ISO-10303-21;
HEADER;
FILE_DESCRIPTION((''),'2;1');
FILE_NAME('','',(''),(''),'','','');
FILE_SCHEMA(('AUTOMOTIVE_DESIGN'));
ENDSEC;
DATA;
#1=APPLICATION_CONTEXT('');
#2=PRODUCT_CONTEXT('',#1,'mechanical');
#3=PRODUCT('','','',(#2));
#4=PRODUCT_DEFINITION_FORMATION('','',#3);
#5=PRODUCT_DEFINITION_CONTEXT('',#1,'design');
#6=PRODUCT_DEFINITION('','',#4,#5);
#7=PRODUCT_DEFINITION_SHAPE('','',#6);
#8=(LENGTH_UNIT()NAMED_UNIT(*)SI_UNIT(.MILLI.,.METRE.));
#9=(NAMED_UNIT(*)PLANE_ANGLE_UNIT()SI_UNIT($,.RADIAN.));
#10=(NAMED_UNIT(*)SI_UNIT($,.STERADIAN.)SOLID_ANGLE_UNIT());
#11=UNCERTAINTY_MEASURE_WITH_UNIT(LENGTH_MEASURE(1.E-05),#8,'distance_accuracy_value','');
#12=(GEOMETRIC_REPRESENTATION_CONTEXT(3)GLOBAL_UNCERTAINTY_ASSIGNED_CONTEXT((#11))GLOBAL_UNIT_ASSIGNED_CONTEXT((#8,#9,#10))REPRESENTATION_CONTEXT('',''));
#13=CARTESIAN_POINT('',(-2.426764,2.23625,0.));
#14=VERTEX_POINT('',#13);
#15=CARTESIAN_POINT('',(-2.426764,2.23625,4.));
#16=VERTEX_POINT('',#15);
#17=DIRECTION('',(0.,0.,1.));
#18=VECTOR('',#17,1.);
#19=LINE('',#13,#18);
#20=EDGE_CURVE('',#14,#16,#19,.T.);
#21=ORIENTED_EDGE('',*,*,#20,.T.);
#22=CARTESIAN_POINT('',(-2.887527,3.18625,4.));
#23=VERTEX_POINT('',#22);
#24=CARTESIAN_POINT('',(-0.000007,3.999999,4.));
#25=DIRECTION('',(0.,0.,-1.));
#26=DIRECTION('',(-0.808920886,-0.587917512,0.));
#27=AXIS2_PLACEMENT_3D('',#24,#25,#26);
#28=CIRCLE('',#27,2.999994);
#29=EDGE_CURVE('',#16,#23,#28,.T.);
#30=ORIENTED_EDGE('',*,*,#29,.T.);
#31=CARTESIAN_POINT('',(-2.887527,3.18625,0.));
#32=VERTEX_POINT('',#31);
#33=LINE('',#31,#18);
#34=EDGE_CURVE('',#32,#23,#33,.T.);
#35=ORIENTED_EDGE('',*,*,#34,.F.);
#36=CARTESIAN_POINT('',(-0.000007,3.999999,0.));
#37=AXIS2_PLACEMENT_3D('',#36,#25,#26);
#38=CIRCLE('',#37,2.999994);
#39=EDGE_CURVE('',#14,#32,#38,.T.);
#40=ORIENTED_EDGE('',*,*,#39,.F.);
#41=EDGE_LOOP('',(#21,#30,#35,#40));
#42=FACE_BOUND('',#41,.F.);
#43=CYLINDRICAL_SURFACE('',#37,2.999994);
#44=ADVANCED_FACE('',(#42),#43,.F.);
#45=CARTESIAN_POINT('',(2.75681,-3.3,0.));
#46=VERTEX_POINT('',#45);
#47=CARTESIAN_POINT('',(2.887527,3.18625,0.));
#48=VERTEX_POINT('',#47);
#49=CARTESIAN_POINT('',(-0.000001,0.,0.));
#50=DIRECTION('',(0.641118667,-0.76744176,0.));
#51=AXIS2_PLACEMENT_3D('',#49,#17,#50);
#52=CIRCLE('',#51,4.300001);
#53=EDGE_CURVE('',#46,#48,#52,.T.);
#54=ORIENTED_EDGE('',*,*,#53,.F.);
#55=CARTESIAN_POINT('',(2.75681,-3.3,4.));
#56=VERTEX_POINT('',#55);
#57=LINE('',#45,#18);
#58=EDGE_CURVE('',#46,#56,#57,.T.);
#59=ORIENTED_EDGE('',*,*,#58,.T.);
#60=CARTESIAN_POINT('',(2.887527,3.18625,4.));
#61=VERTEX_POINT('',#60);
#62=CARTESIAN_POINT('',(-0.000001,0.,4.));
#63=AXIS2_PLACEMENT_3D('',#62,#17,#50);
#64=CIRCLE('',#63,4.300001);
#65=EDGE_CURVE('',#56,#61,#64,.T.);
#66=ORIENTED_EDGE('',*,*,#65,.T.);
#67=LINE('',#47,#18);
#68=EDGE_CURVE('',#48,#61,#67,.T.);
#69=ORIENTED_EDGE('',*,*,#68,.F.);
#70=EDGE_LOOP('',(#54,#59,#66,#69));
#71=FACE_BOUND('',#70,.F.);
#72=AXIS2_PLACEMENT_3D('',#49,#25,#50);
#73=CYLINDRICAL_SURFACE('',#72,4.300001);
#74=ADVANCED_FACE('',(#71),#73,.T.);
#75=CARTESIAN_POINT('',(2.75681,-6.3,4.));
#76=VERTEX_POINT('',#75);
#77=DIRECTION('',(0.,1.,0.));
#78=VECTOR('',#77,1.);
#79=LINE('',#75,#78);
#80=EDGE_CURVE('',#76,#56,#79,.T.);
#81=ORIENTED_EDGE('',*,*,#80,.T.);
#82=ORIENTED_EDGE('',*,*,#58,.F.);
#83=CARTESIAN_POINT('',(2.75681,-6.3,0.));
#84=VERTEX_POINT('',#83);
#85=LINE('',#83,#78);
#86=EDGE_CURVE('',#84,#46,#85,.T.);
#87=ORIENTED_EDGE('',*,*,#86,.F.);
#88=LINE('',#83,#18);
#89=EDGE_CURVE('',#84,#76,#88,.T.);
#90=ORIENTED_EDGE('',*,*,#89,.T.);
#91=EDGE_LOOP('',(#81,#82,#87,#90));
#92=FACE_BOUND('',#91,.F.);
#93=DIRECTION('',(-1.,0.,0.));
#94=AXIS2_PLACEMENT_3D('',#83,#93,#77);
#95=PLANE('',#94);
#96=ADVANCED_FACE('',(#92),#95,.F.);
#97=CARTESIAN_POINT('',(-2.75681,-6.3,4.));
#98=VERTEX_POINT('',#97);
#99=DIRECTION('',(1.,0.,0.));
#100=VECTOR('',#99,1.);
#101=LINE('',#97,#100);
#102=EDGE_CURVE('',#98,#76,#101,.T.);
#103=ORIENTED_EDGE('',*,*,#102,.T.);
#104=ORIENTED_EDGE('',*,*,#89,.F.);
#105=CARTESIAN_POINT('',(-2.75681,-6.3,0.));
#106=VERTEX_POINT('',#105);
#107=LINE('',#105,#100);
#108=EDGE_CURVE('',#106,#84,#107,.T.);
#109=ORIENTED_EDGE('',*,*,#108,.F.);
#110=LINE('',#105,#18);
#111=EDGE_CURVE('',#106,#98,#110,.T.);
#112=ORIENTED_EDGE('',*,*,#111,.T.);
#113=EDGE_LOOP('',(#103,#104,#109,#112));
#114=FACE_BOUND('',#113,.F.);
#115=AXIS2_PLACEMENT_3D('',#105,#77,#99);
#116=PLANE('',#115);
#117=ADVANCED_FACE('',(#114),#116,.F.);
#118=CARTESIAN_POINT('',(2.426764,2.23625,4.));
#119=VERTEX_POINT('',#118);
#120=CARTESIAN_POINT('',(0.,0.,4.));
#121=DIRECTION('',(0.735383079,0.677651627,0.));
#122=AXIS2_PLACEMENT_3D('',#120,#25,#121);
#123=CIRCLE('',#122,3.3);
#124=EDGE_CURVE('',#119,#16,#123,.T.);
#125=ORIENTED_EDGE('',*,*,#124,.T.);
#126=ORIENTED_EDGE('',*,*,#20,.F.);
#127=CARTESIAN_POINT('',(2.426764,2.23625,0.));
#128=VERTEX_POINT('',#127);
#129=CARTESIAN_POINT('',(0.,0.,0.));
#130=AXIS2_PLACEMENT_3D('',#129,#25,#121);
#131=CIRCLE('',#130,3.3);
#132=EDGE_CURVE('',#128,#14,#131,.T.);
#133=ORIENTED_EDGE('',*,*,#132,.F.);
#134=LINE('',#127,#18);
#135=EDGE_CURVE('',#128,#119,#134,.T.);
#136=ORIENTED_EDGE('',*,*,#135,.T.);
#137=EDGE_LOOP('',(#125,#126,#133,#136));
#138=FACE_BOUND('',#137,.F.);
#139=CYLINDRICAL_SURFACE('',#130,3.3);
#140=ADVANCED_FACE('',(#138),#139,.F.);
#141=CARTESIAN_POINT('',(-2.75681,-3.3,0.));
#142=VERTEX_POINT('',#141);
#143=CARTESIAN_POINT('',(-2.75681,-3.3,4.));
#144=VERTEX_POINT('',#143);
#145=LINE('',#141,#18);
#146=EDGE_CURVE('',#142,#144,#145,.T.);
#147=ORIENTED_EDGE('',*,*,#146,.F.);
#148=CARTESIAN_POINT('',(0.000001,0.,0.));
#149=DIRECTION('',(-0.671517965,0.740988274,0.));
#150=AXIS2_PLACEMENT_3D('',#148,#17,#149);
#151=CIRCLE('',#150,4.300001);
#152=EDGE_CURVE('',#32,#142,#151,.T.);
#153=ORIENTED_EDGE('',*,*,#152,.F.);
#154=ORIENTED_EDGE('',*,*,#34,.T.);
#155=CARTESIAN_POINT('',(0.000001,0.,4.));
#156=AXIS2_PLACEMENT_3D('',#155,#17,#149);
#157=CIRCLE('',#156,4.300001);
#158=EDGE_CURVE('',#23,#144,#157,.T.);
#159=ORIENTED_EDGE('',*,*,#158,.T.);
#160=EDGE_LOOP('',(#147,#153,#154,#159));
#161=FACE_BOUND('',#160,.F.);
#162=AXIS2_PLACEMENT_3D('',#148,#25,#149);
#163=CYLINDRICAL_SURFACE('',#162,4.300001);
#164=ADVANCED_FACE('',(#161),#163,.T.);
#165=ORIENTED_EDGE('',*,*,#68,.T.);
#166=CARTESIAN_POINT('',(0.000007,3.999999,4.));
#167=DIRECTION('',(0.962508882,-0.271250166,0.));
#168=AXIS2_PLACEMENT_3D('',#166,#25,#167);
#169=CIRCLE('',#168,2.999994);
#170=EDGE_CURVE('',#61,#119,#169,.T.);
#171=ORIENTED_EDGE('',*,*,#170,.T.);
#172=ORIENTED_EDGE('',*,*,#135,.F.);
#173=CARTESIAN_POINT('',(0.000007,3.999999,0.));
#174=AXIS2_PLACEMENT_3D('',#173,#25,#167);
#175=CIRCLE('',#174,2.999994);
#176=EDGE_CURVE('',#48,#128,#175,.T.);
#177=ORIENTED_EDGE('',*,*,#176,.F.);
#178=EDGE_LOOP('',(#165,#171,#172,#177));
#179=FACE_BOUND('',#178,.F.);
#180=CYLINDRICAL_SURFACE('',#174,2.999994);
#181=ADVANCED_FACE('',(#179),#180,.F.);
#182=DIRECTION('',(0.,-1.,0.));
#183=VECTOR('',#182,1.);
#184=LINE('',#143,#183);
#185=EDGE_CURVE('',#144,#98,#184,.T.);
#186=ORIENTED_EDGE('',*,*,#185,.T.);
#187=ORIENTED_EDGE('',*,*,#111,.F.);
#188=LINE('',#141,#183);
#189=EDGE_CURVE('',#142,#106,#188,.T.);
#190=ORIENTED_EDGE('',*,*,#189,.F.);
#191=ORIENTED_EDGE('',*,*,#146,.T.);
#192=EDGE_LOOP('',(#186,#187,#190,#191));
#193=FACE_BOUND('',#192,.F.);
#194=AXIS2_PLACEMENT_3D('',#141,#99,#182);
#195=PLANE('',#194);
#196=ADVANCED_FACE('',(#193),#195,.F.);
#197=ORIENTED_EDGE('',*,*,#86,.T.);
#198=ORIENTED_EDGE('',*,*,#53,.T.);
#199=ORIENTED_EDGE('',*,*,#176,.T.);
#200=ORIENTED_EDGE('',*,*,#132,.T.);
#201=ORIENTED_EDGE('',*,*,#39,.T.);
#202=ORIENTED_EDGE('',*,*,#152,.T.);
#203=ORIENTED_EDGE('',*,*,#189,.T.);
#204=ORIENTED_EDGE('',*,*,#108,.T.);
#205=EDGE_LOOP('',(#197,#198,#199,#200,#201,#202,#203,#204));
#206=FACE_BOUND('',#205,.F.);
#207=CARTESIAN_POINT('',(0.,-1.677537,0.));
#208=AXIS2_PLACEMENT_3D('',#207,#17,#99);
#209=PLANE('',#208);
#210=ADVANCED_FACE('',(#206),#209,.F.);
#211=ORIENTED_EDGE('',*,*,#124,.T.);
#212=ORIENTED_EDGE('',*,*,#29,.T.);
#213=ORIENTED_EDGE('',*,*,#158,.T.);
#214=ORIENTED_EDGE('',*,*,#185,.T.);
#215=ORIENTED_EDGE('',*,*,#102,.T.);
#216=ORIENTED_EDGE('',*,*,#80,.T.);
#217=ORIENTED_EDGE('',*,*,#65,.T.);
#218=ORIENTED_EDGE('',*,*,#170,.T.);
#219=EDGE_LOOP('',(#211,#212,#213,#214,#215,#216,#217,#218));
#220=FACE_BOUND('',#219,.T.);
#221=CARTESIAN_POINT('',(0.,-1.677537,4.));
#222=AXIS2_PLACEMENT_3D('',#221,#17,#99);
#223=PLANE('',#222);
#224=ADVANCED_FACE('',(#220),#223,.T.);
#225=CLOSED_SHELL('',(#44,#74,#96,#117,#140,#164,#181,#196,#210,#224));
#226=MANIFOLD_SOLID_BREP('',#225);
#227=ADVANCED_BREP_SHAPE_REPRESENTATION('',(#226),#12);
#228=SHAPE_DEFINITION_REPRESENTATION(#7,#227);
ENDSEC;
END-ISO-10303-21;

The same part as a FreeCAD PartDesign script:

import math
import FreeCAD as App
import Part
import Sketcher
from FreeCAD import Vector

doc = App.newDocument("Part")
body = doc.addObject("PartDesign::Body", "Body")

# Sketch on XY plane
sketch1 = body.newObject("Sketcher::SketchObject", "Sketch")
sketch1.AttachmentSupport = (doc.getObject("XY_Plane"), [""])
sketch1.MapMode = "FlatFace"
sketch1.addGeometry([
    Part.ArcOfCircle(Part.Circle(Vector(0, 0, 0), Vector(0, 0, 1), 3.3), math.radians(137.339596), math.radians(402.660404)),  # 0
    Part.ArcOfCircle(Part.Circle(Vector(-0.000007, 3.999999, 0), Vector(0, 0, 1), 2.999994), math.radians(-164.261327), math.radians(-143.990633)),  # 1
    Part.ArcOfCircle(Part.Circle(Vector(0.000001, 0, 0), Vector(0, 0, 1), 4.300001), math.radians(132.18433), math.radians(230.124714)),  # 2
    Part.LineSegment(Vector(-2.75681, -3.3, 0), Vector(-2.75681, -6.3, 0)),  # 3
    Part.LineSegment(Vector(-2.75681, -6.3, 0), Vector(2.75681, -6.3, 0)),  # 4
    Part.LineSegment(Vector(2.75681, -6.3, 0), Vector(2.75681, -3.3, 0)),  # 5
    Part.ArcOfCircle(Part.Circle(Vector(-0.000001, 0, 0), Vector(0, 0, 1), 4.300001), math.radians(-50.124714), math.radians(47.81567)),  # 6
    Part.ArcOfCircle(Part.Circle(Vector(0.000007, 3.999999, 0), Vector(0, 0, 1), 2.999994), math.radians(-36.009367), math.radians(-15.738673)),  # 7
], False)
sketch1.addConstraint([
    Sketcher.Constraint("Coincident", 0, 1, 1, 2),
    Sketcher.Constraint("Coincident", 1, 1, 2, 1),
    Sketcher.Constraint("Coincident", 2, 2, 3, 1),
    Sketcher.Constraint("Coincident", 3, 2, 4, 1),
    Sketcher.Constraint("Coincident", 4, 2, 5, 1),
    Sketcher.Constraint("Coincident", 5, 2, 6, 1),
    Sketcher.Constraint("Coincident", 6, 2, 7, 2),
    Sketcher.Constraint("Coincident", 7, 1, 0, 2),
    Sketcher.Constraint("Vertical", 3),
    Sketcher.Constraint("Horizontal", 4),
    Sketcher.Constraint("Vertical", 5),
    Sketcher.Constraint("Coincident", 0, 3, -1, 1),
    Sketcher.Constraint("Coincident", 2, 3, -1, 1),
    Sketcher.Constraint("Coincident", 6, 3, -1, 1),
    Sketcher.Constraint("Equal", 2, 6),
    Sketcher.Constraint("Equal", 1, 7),
    Sketcher.Constraint("Symmetric", 1, 3, 7, 3, -2),
    Sketcher.Constraint("Horizontal", 2, 2, 5, 2),
    Sketcher.Constraint("Radius", 0, 3.3),
    Sketcher.Constraint("Radius", 2, 4.300001),
    Sketcher.Constraint("DistanceY", 3, 2, 3, 1, 3.0),
    Sketcher.Constraint("DistanceY", -1, 1, 1, 3, 3.999999),
    Sketcher.Constraint("DistanceY", 2, 2, -1, 1, 3.3),
    Sketcher.Constraint("DistanceY", 0, 1, 1, 1, 0.95),
    Sketcher.Constraint("Radius", 1, 2.999994),
])
pad1 = body.newObject("PartDesign::Pad", "Pad")
pad1.Profile = sketch1
pad1.Length = 4

doc.recompute()
